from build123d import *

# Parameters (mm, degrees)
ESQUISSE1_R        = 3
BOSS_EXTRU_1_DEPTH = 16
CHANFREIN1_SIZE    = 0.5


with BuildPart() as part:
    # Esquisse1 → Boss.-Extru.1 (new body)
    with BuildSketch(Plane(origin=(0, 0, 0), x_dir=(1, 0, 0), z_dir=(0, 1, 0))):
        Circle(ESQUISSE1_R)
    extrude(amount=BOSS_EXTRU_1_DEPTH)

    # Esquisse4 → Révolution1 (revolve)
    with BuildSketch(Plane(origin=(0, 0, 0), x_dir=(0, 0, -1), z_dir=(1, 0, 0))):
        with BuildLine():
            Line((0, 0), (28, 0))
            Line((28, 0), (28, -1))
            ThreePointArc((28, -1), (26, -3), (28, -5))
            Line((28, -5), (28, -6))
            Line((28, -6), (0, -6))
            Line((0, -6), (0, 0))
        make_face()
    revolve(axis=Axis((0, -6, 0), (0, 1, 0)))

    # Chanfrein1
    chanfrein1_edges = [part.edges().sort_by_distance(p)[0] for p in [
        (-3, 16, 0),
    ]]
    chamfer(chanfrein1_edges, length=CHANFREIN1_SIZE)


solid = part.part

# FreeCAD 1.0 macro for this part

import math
import FreeCAD as App
import Part
import Sketcher

V = App.Vector
Q = App.Units.Quantity


def edges_at(feature, points):
    """Names of the edges that pass closest to the given points."""
    edges = feature.Shape.Edges
    near = lambda p: min(range(len(edges)), key=lambda i: edges[i].distToShape(Part.Vertex(*p))[0])
    return sorted({f"Edge{near(p) + 1}" for p in points})

doc = App.newDocument("Part")
body = doc.addObject("PartDesign::Body", "Body")

sketch1 = doc.addObject("Sketcher::SketchObject", "Sketch")
body.addObject(sketch1)
sketch1.AttachmentSupport = (doc.XZ_Plane, [""])
sketch1.MapMode = "FlatFace"
sketch1.addGeometry(Part.Circle(V(0, 0, 0), V(0, 0, 1), 3), False)
sketch1.addConstraint(Sketcher.Constraint("Coincident", 0, 3, -1, 1))
sketch1.addConstraint(Sketcher.Constraint("Diameter", 0, Q("6 mm")))
pad1 = doc.addObject("PartDesign::Pad", "Pad")
body.addObject(pad1)
pad1.Profile = sketch1
pad1.Length = 16
pad1.Reversed = True

sketch2 = doc.addObject("Sketcher::SketchObject", "Sketch001")
body.addObject(sketch2)
sketch2.AttachmentSupport = (doc.YZ_Plane, [""])
sketch2.MapMode = "FlatFace"
sketch2.addGeometry(Part.LineSegment(V(0, -28, 0), V(0, 0, 0)), False)
sketch2.addGeometry(Part.LineSegment(V(0, 0, 0), V(-6, 0, 0)), False)
sketch2.addGeometry(Part.LineSegment(V(-6, 0, 0), V(-6, -28, 0)), False)
sketch2.addGeometry(Part.LineSegment(V(-6, -28, 0), V(-5, -28, 0)), False)
sketch2.addGeometry(Part.ArcOfCircle(Part.Circle(V(-3, -28, 0), V(0, 0, 1), 2), math.radians(0), math.radians(180)), False)
sketch2.addGeometry(Part.LineSegment(V(-1, -28, 0), V(0, -28, 0)), False)
sketch2.addConstraint(Sketcher.Constraint("Coincident", 0, 2, 1, 1))
sketch2.addConstraint(Sketcher.Constraint("Coincident", 1, 2, 2, 1))
sketch2.addConstraint(Sketcher.Constraint("Coincident", 2, 2, 3, 1))
sketch2.addConstraint(Sketcher.Constraint("Coincident", 3, 2, 4, 2))
sketch2.addConstraint(Sketcher.Constraint("Coincident", 4, 1, 5, 1))
sketch2.addConstraint(Sketcher.Constraint("Coincident", 5, 2, 0, 1))
sketch2.addConstraint(Sketcher.Constraint("Vertical", 0))
sketch2.addConstraint(Sketcher.Constraint("Horizontal", 1))
sketch2.addConstraint(Sketcher.Constraint("Vertical", 2))
sketch2.addConstraint(Sketcher.Constraint("Horizontal", 3))
sketch2.addConstraint(Sketcher.Constraint("Horizontal", 5))
sketch2.addConstraint(Sketcher.Constraint("Coincident", 0, 2, -1, 1))
sketch2.addConstraint(Sketcher.Constraint("Horizontal", 4, 3, 2, 2))
sketch2.addConstraint(Sketcher.Constraint("Horizontal", 3, 2, 4, 1))
sketch2.addConstraint(Sketcher.Constraint("Equal", 3, 5))
sketch2.addConstraint(Sketcher.Constraint("Radius", 4, Q("2 mm")))
sketch2.addConstraint(Sketcher.Constraint("DistanceX", 1, 2, 1, 1, Q("6 mm")))
sketch2.addConstraint(Sketcher.Constraint("DistanceY", 0, 1, 0, 2, Q("28 mm")))
revolution = doc.addObject("PartDesign::Revolution", "Revolution")
body.addObject(revolution)
revolution.Profile = sketch2
revolution.ReferenceAxis = (sketch2, ["H_Axis"])
revolution.Angle = 360
doc.recompute()

chamfer = doc.addObject("PartDesign::Chamfer", "Chamfer")
body.addObject(chamfer)
chamfer.Base = (revolution, edges_at(revolution, [(-3, 16, 0)]))
chamfer.Size = 0.5

doc.recompute()
